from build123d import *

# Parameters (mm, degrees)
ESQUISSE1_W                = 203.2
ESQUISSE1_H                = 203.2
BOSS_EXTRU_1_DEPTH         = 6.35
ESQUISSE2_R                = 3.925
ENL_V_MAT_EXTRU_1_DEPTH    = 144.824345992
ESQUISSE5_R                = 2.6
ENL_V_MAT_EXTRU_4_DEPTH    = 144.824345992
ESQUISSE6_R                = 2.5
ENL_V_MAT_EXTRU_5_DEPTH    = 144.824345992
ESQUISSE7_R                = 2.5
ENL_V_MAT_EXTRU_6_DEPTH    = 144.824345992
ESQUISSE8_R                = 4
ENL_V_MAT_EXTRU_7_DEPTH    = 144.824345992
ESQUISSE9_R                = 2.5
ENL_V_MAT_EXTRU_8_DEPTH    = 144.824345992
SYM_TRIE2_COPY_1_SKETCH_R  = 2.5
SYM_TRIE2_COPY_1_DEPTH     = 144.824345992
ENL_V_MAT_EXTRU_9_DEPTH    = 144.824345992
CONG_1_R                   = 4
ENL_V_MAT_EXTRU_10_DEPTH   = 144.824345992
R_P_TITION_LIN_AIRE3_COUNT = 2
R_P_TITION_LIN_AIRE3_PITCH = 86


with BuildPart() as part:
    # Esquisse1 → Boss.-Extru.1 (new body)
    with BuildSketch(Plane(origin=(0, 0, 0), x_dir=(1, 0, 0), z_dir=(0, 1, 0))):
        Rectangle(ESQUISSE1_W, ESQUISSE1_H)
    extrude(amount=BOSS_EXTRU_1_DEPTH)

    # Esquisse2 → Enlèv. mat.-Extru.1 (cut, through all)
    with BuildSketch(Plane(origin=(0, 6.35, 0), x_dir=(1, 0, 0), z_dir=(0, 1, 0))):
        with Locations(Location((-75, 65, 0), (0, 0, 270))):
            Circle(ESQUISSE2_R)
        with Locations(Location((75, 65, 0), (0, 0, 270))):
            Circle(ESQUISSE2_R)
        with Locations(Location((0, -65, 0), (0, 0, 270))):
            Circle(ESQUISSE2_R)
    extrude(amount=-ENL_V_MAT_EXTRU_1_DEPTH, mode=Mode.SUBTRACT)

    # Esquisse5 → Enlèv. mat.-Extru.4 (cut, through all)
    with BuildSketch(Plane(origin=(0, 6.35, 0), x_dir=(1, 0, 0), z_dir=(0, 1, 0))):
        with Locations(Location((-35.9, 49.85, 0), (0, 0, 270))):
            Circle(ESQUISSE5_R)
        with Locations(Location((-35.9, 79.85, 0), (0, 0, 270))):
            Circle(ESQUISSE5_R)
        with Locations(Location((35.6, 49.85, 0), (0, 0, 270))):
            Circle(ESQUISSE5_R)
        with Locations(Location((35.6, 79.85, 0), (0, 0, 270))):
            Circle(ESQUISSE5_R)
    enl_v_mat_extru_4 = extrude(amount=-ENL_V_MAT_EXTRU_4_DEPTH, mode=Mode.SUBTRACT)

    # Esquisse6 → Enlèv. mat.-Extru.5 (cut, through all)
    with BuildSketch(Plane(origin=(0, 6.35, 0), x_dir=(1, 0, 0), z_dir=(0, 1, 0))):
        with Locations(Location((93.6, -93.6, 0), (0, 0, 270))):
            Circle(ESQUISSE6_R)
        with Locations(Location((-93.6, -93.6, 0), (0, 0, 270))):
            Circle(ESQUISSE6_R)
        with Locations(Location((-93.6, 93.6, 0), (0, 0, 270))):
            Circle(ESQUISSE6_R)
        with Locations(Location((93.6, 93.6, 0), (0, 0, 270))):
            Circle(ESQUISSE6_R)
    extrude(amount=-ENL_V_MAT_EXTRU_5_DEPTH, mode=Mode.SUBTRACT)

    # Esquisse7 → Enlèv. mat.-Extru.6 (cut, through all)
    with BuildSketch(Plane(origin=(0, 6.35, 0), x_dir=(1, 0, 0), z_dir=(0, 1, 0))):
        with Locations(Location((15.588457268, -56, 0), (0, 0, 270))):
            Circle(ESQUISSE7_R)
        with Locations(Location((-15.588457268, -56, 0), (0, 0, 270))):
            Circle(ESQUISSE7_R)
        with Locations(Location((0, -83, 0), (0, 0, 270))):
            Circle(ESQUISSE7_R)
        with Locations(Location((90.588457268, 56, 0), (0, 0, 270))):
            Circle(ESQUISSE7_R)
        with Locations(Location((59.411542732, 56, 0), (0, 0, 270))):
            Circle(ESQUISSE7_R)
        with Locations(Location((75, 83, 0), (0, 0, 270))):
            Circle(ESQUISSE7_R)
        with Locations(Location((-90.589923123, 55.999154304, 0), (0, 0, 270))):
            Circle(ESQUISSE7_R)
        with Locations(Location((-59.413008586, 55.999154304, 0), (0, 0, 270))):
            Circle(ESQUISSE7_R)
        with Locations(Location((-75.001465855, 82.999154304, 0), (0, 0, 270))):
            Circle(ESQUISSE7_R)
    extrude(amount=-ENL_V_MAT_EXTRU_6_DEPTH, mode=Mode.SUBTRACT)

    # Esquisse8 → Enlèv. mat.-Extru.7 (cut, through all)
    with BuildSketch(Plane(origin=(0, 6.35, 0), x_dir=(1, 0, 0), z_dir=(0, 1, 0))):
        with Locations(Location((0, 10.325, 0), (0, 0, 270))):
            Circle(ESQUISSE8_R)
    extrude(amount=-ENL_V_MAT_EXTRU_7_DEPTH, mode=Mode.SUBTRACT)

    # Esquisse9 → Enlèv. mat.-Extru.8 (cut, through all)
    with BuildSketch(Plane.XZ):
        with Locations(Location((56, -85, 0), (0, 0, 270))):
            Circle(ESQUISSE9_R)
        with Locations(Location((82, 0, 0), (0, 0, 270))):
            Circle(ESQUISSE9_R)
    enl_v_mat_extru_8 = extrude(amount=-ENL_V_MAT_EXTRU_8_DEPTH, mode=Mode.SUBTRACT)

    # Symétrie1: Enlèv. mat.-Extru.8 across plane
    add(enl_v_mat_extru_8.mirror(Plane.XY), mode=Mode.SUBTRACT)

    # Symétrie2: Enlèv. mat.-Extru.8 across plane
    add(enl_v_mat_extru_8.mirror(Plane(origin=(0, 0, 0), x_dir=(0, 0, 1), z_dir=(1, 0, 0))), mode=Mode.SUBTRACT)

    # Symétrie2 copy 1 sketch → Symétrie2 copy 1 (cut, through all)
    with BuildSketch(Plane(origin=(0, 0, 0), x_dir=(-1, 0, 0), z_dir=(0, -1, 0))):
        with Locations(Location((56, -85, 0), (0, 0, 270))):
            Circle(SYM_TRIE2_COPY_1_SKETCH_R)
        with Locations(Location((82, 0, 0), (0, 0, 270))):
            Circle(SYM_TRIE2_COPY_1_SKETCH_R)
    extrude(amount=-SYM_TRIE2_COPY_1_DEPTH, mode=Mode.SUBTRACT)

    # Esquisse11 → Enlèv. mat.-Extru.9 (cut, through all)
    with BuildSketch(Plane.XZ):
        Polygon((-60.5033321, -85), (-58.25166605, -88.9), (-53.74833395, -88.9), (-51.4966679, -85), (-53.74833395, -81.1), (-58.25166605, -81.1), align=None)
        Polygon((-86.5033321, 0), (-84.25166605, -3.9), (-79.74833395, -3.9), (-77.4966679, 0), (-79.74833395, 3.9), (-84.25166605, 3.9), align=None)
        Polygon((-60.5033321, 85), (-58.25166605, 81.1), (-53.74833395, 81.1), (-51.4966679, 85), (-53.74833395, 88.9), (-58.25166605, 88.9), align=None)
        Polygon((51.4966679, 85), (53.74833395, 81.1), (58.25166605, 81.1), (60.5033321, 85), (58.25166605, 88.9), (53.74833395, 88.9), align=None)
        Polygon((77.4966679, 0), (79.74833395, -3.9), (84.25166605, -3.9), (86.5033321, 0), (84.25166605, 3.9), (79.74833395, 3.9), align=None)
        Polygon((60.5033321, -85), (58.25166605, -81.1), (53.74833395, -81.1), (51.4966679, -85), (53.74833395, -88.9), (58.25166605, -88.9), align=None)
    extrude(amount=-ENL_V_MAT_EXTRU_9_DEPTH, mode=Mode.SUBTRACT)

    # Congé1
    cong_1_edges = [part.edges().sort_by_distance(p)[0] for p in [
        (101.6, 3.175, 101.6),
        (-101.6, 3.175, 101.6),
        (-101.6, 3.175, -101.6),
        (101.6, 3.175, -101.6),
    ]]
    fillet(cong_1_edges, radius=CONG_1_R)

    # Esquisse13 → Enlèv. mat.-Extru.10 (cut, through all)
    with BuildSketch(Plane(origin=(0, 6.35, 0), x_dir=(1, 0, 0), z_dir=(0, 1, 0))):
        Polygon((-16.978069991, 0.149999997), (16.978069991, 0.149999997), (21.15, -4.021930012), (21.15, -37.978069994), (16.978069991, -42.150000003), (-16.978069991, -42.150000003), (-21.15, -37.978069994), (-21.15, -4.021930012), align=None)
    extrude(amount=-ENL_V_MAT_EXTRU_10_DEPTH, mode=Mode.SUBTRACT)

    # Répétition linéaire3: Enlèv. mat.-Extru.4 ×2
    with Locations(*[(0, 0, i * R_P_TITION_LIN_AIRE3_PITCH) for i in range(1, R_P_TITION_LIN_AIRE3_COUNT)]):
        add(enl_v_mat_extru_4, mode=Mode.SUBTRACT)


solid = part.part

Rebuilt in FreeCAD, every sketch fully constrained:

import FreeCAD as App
import Part
import Sketcher
from FreeCAD import Vector
Q = App.Units.Quantity


def edges_at(feature, points):
    """Names of the edges that pass closest to the given points."""
    edges = feature.Shape.Edges
    near = lambda p: min(range(len(edges)), key=lambda i: edges[i].distToShape(Part.Vertex(*p))[0])
    return sorted({f"Edge{near(p) + 1}" for p in points})


def add_polygon(sketch, points):
    """Adds a closed chain of lines whose ends are joined by coincident constraints."""
    first, n = sketch.GeometryCount, len(points)
    for a, b in zip(points, points[1:] + points[:1]):
        sketch.addGeometry(Part.LineSegment(App.Vector(*a, 0), App.Vector(*b, 0)), False)
    for i in range(n):
        sketch.addConstraint(Sketcher.Constraint("Coincident", first + i, 2, first + (i + 1) % n, 1))

doc = App.newDocument("Part")
params = doc.addObject("Spreadsheet::Sheet", "Params")
for row, (alias, value) in enumerate([
    ("sketch1_width", "203.2 mm"),
    ("pad1_length", "6.35 mm"),
    ("sketch2_diameter", "7.85 mm"),
    ("sketch3_diameter", "5.2 mm"),
    ("sketch4_diameter", "5 mm"),
    ("sketch5_diameter", "5 mm"),
    ("sketch6_diameter", "8 mm"),
    ("sketch7_diameter", "5 mm"),
    ("sketch8_diameter", "5 mm"),
    ("fillet_radius", "4 mm"),
    ("sketch10_length", "5.9 mm"),
    ("linearpattern_pitch", "86 mm"),
], start=1):
    params.set(f"A{row}", alias)
    params.set(f"B{row}", "=" + value)
    params.setAlias(f"B{row}", alias)

body = doc.addObject("PartDesign::Body", "Body")

sketch1 = doc.addObject("Sketcher::SketchObject", "Sketch")
body.addObject(sketch1)
sketch1.AttachmentSupport = (doc.XZ_Plane, [""])
sketch1.MapMode = "FlatFace"
add_polygon(sketch1, [(-101.6, -101.6), (-101.6, 101.6), (101.6, 101.6), (101.6, -101.6)])
sketch1.addConstraint([
    Sketcher.Constraint("Vertical", 0),
    Sketcher.Constraint("Horizontal", 1),
    Sketcher.Constraint("Vertical", 2),
    Sketcher.Constraint("Horizontal", 3),
    Sketcher.Constraint("Symmetric", 0, 2, 2, 2, -1, 1),
    Sketcher.Constraint("Equal", 3, 0),
    Sketcher.Constraint("DistanceX", 1, 1, 1, 2, Q("203.2 mm")),
])
sketch1.setExpression("Constraints[10]", "Params.sketch1_width")
pad1 = doc.addObject("PartDesign::Pad", "Pad")
body.addObject(pad1)
pad1.Profile = sketch1
pad1.setExpression("Length", "Params.pad1_length")
pad1.Reversed = True

sketch2 = doc.addObject("Sketcher::SketchObject", "Sketch001")
body.addObject(sketch2)
sketch2.AttachmentSupport = (doc.XZ_Plane, [""])
sketch2.MapMode = "FlatFace"
sketch2.AttachmentOffset = App.Placement(Vector(0, 0, -6.35), App.Rotation())
sketch2.addGeometry([
    Part.Circle(Vector(-75, -65, 0), Vector(0, 0, 1), 3.925),
    Part.Circle(Vector(75, -65, 0), Vector(0, 0, 1), 3.925),
    Part.Circle(Vector(0, 65, 0), Vector(0, 0, 1), 3.925),
], False)
sketch2.addConstraint([
    Sketcher.Constraint("Equal", 0, 1),
    Sketcher.Constraint("Equal", 1, 2),
    Sketcher.Constraint("Symmetric", 0, 3, 1, 3, -2),
    Sketcher.Constraint("PointOnObject", 2, 3, -2),
    Sketcher.Constraint("Diameter", 0, Q("7.85 mm")),
    Sketcher.Constraint("DistanceX", 0, 3, -1, 1, Q("75 mm")),
    Sketcher.Constraint("DistanceY", 0, 3, -1, 1, Q("65 mm")),
    Sketcher.Constraint("DistanceY", -1, 1, 2, 3, Q("65 mm")),
])
sketch2.setExpression("Constraints[4]", "Params.sketch2_diameter")
pocket1 = doc.addObject("PartDesign::Pocket", "Pocket")
body.addObject(pocket1)
pocket1.Profile = sketch2
pocket1.Type = "ThroughAll"
pocket1.Reversed = True

sketch3 = doc.addObject("Sketcher::SketchObject", "Sketch002")
body.addObject(sketch3)
sketch3.AttachmentSupport = (doc.XZ_Plane, [""])
sketch3.MapMode = "FlatFace"
sketch3.AttachmentOffset = App.Placement(Vector(0, 0, -6.35), App.Rotation())
sketch3.addGeometry([
    Part.Circle(Vector(-35.9, -49.85, 0), Vector(0, 0, 1), 2.6),
    Part.Circle(Vector(-35.9, -79.85, 0), Vector(0, 0, 1), 2.6),
    Part.Circle(Vector(35.6, -49.85, 0), Vector(0, 0, 1), 2.6),
    Part.Circle(Vector(35.6, -79.85, 0), Vector(0, 0, 1), 2.6),
], False)
sketch3.addConstraint([
    Sketcher.Constraint("Equal", 0, 1),
    Sketcher.Constraint("Equal", 1, 2),
    Sketcher.Constraint("Equal", 2, 3),
    Sketcher.Constraint("Horizontal", 0, 3, 2, 3),
    Sketcher.Constraint("Horizontal", 1, 3, 3, 3),
    Sketcher.Constraint("Vertical", 0, 3, 1, 3),
    Sketcher.Constraint("Vertical", 2, 3, 3, 3),
    Sketcher.Constraint("Diameter", 0, Q("5.2 mm")),
    Sketcher.Constraint("DistanceY", 1, 3, 0, 3, Q("30 mm")),
    Sketcher.Constraint("DistanceX", 0, 3, -1, 1, Q("35.9 mm")),
    Sketcher.Constraint("DistanceX", -1, 1, 2, 3, Q("35.6 mm")),
    Sketcher.Constraint("DistanceY", 0, 3, -1, 1, Q("49.85 mm")),
])
sketch3.setExpression("Constraints[7]", "Params.sketch3_diameter")
pocket2 = doc.addObject("PartDesign::Pocket", "Pocket001")
body.addObject(pocket2)
pocket2.Profile = sketch3
pocket2.Type = "ThroughAll"
pocket2.Reversed = True

sketch4 = doc.addObject("Sketcher::SketchObject", "Sketch003")
body.addObject(sketch4)
sketch4.AttachmentSupport = (doc.XZ_Plane, [""])
sketch4.MapMode = "FlatFace"
sketch4.AttachmentOffset = App.Placement(Vector(0, 0, -6.35), App.Rotation())
sketch4.addGeometry([
    Part.Circle(Vector(93.6, 93.6, 0), Vector(0, 0, 1), 2.5),
    Part.Circle(Vector(-93.6, 93.6, 0), Vector(0, 0, 1), 2.5),
    Part.Circle(Vector(-93.6, -93.6, 0), Vector(0, 0, 1), 2.5),
    Part.Circle(Vector(93.6, -93.6, 0), Vector(0, 0, 1), 2.5),
], False)
sketch4.addConstraint([
    Sketcher.Constraint("Equal", 0, 1),
    Sketcher.Constraint("Equal", 1, 2),
    Sketcher.Constraint("Equal", 2, 3),
    Sketcher.Constraint("Symmetric", 0, 3, 2, 3, -1, 1),
    Sketcher.Constraint("Symmetric", 1, 3, 3, 3, -1, 1),
    Sketcher.Constraint("Symmetric", 0, 3, 1, 3, -2),
    Sketcher.Constraint("Diameter", 0, Q("5 mm")),
    Sketcher.Constraint("DistanceX", -1, 1, 0, 3, Q("93.6 mm")),
    Sketcher.Constraint("DistanceY", -1, 1, 0, 3, Q("93.6 mm")),
])
sketch4.setExpression("Constraints[6]", "Params.sketch4_diameter")
pocket3 = doc.addObject("PartDesign::Pocket", "Pocket002")
body.addObject(pocket3)
pocket3.Profile = sketch4
pocket3.Type = "ThroughAll"
pocket3.Reversed = True

sketch5 = doc.addObject("Sketcher::SketchObject", "Sketch004")
body.addObject(sketch5)
sketch5.AttachmentSupport = (doc.XZ_Plane, [""])
sketch5.MapMode = "FlatFace"
sketch5.AttachmentOffset = App.Placement(Vector(0, 0, -6.35), App.Rotation())
sketch5.addGeometry([
    Part.Circle(Vector(15.588457, 56, 0), Vector(0, 0, 1), 2.5),
    Part.Circle(Vector(-15.588457, 56, 0), Vector(0, 0, 1), 2.5),
    Part.Circle(Vector(0, 83, 0), Vector(0, 0, 1), 2.5),
    Part.Circle(Vector(90.588457, -56, 0), Vector(0, 0, 1), 2.5),
    Part.Circle(Vector(59.411543, -56, 0), Vector(0, 0, 1), 2.5),
    Part.Circle(Vector(75, -83, 0), Vector(0, 0, 1), 2.5),
    Part.Circle(Vector(-90.589923, -55.999154, 0), Vector(0, 0, 1), 2.5),
    Part.Circle(Vector(-59.413009, -55.999154, 0), Vector(0, 0, 1), 2.5),
    Part.Circle(Vector(-75.001466, -82.999154, 0), Vector(0, 0, 1), 2.5),
], False)
sketch5.addConstraint([
    Sketcher.Constraint("Equal", 0, 1),
    Sketcher.Constraint("Equal", 1, 2),
    Sketcher.Constraint("Equal", 2, 3),
    Sketcher.Constraint("Equal", 3, 4),
    Sketcher.Constraint("Equal", 4, 5),
    Sketcher.Constraint("Equal", 5, 6),
    Sketcher.Constraint("Equal", 6, 7),
    Sketcher.Constraint("Equal", 7, 8),
    Sketcher.Constraint("Symmetric", 0, 3, 1, 3, -2),
    Sketcher.Constraint("PointOnObject", 2, 3, -2),
    Sketcher.Constraint("Horizontal", 3, 3, 4, 3),
    Sketcher.Constraint("Horizontal", 6, 3, 7, 3),
    Sketcher.Constraint("Diameter", 0, Q("5 mm")),
    Sketcher.Constraint("DistanceY", -1, 1, 0, 3, Q("56 mm")),
    Sketcher.Constraint("DistanceY", -1, 1, 2, 3, Q("83 mm")),
    Sketcher.Constraint("DistanceY", 3, 3, -1, 1, Q("56 mm")),
    Sketcher.Constraint("DistanceX", -1, 1, 5, 3, Q("75 mm")),
    Sketcher.Constraint("DistanceY", 5, 3, -1, 1, Q("83 mm")),
    Sketcher.Constraint("DistanceX", 0, 3, 3, 3, Q("75 mm")),
    Sketcher.Constraint("DistanceX", 1, 3, 4, 3, Q("75 mm")),
    Sketcher.Constraint("DistanceY", 8, 3, 6, 3, Q("27 mm")),
    Sketcher.Constraint("DistanceX", 7, 3, -1, 1, Q("59.413009 mm")),
    Sketcher.Constraint("DistanceX", 6, 3, 0, 3, Q("106.17838 mm")),
    Sketcher.Constraint("DistanceX", 7, 3, 4, 3, Q("118.824551 mm")),
    Sketcher.Constraint("DistanceX", 8, 3, 4, 3, Q("134.413009 mm")),
    Sketcher.Constraint("DistanceY", 6, 3, -1, 1, Q("55.999154 mm")),
])
sketch5.setExpression("Constraints[12]", "Params.sketch5_diameter")
pocket4 = doc.addObject("PartDesign::Pocket", "Pocket003")
body.addObject(pocket4)
pocket4.Profile = sketch5
pocket4.Type = "ThroughAll"
pocket4.Reversed = True

sketch6 = doc.addObject("Sketcher::SketchObject", "Sketch005")
body.addObject(sketch6)
sketch6.AttachmentSupport = (doc.XZ_Plane, [""])
sketch6.MapMode = "FlatFace"
sketch6.AttachmentOffset = App.Placement(Vector(0, 0, -6.35), App.Rotation())
sketch6.addGeometry(Part.Circle(Vector(0, -10.325, 0), Vector(0, 0, 1), 4), False)
sketch6.addConstraint([
    Sketcher.Constraint("PointOnObject", 0, 3, -2),
    Sketcher.Constraint("Diameter", 0, Q("8 mm")),
    Sketcher.Constraint("DistanceY", 0, 3, -1, 1, Q("10.325 mm")),
])
sketch6.setExpression("Constraints[1]", "Params.sketch6_diameter")
pocket5 = doc.addObject("PartDesign::Pocket", "Pocket004")
body.addObject(pocket5)
pocket5.Profile = sketch6
pocket5.Type = "ThroughAll"
pocket5.Reversed = True

sketch7 = doc.addObject("Sketcher::SketchObject", "Sketch006")
body.addObject(sketch7)
sketch7.AttachmentSupport = (doc.XZ_Plane, [""])
sketch7.MapMode = "FlatFace"
sketch7.addGeometry([
    Part.Circle(Vector(56, -85, 0), Vector(0, 0, 1), 2.5),
    Part.Circle(Vector(82, 0, 0), Vector(0, 0, 1), 2.5),
], False)
sketch7.addConstraint([
    Sketcher.Constraint("Equal", 0, 1),
    Sketcher.Constraint("PointOnObject", 1, 3, -1),
    Sketcher.Constraint("Diameter", 0, Q("5 mm")),
    Sketcher.Constraint("DistanceX", -1, 1, 0, 3, Q("56 mm")),
    Sketcher.Constraint("DistanceY", 0, 3, -1, 1, Q("85 mm")),
    Sketcher.Constraint("DistanceX", -1, 1, 1, 3, Q("82 mm")),
])
sketch7.setExpression("Constraints[2]", "Params.sketch7_diameter")
pocket6 = doc.addObject("PartDesign::Pocket", "Pocket005")
body.addObject(pocket6)
pocket6.Profile = sketch7
pocket6.Type = "ThroughAll"
doc.recompute()

mirrored = doc.addObject("PartDesign::Mirrored", "Mirrored")
body.addObject(mirrored)
mirrored.Originals = [pocket6]
mirrored.MirrorPlane = (doc.XY_Plane, [""])
body.Tip = mirrored
doc.recompute()

mirrored2 = doc.addObject("PartDesign::Mirrored", "Mirrored001")
body.addObject(mirrored2)
mirrored2.Originals = [pocket6]
mirrored2.MirrorPlane = (doc.YZ_Plane, [""])
body.Tip = mirrored2

sketch8 = doc.addObject("Sketcher::SketchObject", "Sketch007")
body.addObject(sketch8)
sketch8.AttachmentSupport = (doc.XZ_Plane, [""])
sketch8.MapMode = "FlatFace"
sketch8.addGeometry([
    Part.Circle(Vector(-56, 85, 0), Vector(0, 0, 1), 2.5),
    Part.Circle(Vector(-82, 0, 0), Vector(0, 0, 1), 2.5),
], False)
sketch8.addConstraint([
    Sketcher.Constraint("Equal", 0, 1),
    Sketcher.Constraint("PointOnObject", 1, 3, -1),
    Sketcher.Constraint("Diameter", 0, Q("5 mm")),
    Sketcher.Constraint("DistanceX", 0, 3, -1, 1, Q("56 mm")),
    Sketcher.Constraint("DistanceY", -1, 1, 0, 3, Q("85 mm")),
    Sketcher.Constraint("DistanceX", 1, 3, -1, 1, Q("82 mm")),
])
sketch8.setExpression("Constraints[2]", "Params.sketch8_diameter")
pocket7 = doc.addObject("PartDesign::Pocket", "Pocket006")
body.addObject(pocket7)
pocket7.Profile = sketch8
pocket7.Type = "ThroughAll"

sketch9 = doc.addObject("Sketcher::SketchObject", "Sketch008")
body.addObject(sketch9)
sketch9.AttachmentSupport = (doc.XZ_Plane, [""])
sketch9.MapMode = "FlatFace"
add_polygon(sketch9, [(-60.503332, -85), (-58.251666, -88.9), (-53.748334, -88.9), (-51.496668, -85), (-53.748334, -81.1), (-58.251666, -81.1)])
add_polygon(sketch9, [(-86.503332, 0), (-84.251666, -3.9), (-79.748334, -3.9), (-77.496668, 0), (-79.748334, 3.9), (-84.251666, 3.9)])
add_polygon(sketch9, [(-60.503332, 85), (-58.251666, 81.1), (-53.748334, 81.1), (-51.496668, 85), (-53.748334, 88.9), (-58.251666, 88.9)])
add_polygon(sketch9, [(51.496668, 85), (53.748334, 81.1), (58.251666, 81.1), (60.503332, 85), (58.251666, 88.9), (53.748334, 88.9)])
add_polygon(sketch9, [(77.496668, 0), (79.748334, -3.9), (84.251666, -3.9), (86.503332, 0), (84.251666, 3.9), (79.748334, 3.9)])
add_polygon(sketch9, [(60.503332, -85), (58.251666, -81.1), (53.748334, -81.1), (51.496668, -85), (53.748334, -88.9), (58.251666, -88.9)])
sketch9.addConstraint([
    Sketcher.Constraint("Horizontal", 1),
    Sketcher.Constraint("Horizontal", 4),
    Sketcher.Constraint("Horizontal", 7),
    Sketcher.Constraint("Horizontal", 10),
    Sketcher.Constraint("Horizontal", 13),
    Sketcher.Constraint("Horizontal", 16),
    Sketcher.Constraint("Horizontal", 19),
    Sketcher.Constraint("Horizontal", 22),
    Sketcher.Constraint("Horizontal", 25),
    Sketcher.Constraint("Horizontal", 28),
    Sketcher.Constraint("Horizontal", 31),
    Sketcher.Constraint("Horizontal", 34),
    Sketcher.Constraint("Symmetric", 3, 2, 18, 2, -1, 1),
    Sketcher.Constraint("Symmetric", 5, 2, 20, 2, -1, 1),
    Sketcher.Constraint("Symmetric", 0, 2, 21, 2, -1, 1),
    Sketcher.Constraint("Symmetric", 2, 2, 23, 2, -1, 1),
    Sketcher.Constraint("Symmetric", 9, 2, 24, 2, -1, 1),
    Sketcher.Constraint("Symmetric", 11, 2, 26, 2, -1, 1),
    Sketcher.Constraint("Symmetric", 6, 2, 27, 2, -1, 1),
    Sketcher.Constraint("Symmetric", 8, 2, 29, 2, -1, 1),
    Sketcher.Constraint("Symmetric", 12, 2, 30, 2, -1, 1),
    Sketcher.Constraint("Symmetric", 14, 2, 32, 2, -1, 1),
    Sketcher.Constraint("Symmetric", 15, 2, 33, 2, -1, 1),
    Sketcher.Constraint("Symmetric", 17, 2, 35, 2, -1, 1),
    Sketcher.Constraint("Symmetric", 13, 2, 18, 2, -2),
    Sketcher.Constraint("Symmetric", 17, 2, 20, 2, -2),
    Sketcher.Constraint("Symmetric", 16, 2, 21, 2, -2),
    Sketcher.Constraint("Symmetric", 14, 2, 23, 2, -2),
    Sketcher.Constraint("Symmetric", 7, 2, 24, 2, -2),
    Sketcher.Constraint("PointOnObject", 8, 2, -1),
    Sketcher.Constraint("PointOnObject", 11, 2, -1),
    Sketcher.Constraint("Parallel", 0, 3),
    Sketcher.Constraint("Parallel", 2, 5),
    Sketcher.Constraint("Parallel", 3, 6),
    Sketcher.Constraint("Parallel", 5, 8),
    Sketcher.Constraint("Parallel", 6, 9),
    Sketcher.Constraint("Parallel", 8, 11),
    Sketcher.Constraint("Parallel", 9, 12),
    Sketcher.Constraint("Parallel", 12, 15),
    Sketcher.Constraint("Parallel", 17, 20),
    Sketcher.Constraint("Parallel", 20, 23),
    Sketcher.Constraint("Parallel", 23, 26),
    Sketcher.Constraint("Parallel", 26, 29),
    Sketcher.Constraint("Parallel", 29, 32),
    Sketcher.Constraint("Parallel", 32, 35),
    Sketcher.Constraint("Horizontal", 2, 2, 5, 2),
    Sketcher.Constraint("Vertical", 1, 2, 3, 2),
    Sketcher.Constraint("Equal", 4, 7),
    Sketcher.Constraint("Equal", 5, 6),
    Sketcher.Constraint("Angle", 0, Q("-60 deg")),
    Sketcher.Constraint("DistanceY", 2, 2, -1, 1, Q("85 mm")),
    Sketcher.Constraint("DistanceX", 6, 2, 4, 2, Q("26 mm")),
    Sketcher.Constraint("DistanceX", 12, 2, 18, 2, Q("112 mm")),
    Sketcher.Constraint("DistanceY", 0, 2, -1, 1, Q("88.9 mm")),
    Sketcher.Constraint("DistanceX", 0, 2, 2, 2, Q("6.754998 mm")),
])
pocket8 = doc.addObject("PartDesign::Pocket", "Pocket007")
body.addObject(pocket8)
pocket8.Profile = sketch9
pocket8.Type = "ThroughAll"
doc.recompute()

fillet = doc.addObject("PartDesign::Fillet", "Fillet")
body.addObject(fillet)
fillet.Base = (pocket8, edges_at(pocket8, [
    (101.6, 3.175, 101.6),
    (-101.6, 3.175, 101.6),
    (-101.6, 3.175, -101.6),
    (101.6, 3.175, -101.6),
]))
fillet.setExpression("Radius", "Params.fillet_radius")

sketch10 = doc.addObject("Sketcher::SketchObject", "Sketch009")
body.addObject(sketch10)
sketch10.AttachmentSupport = (doc.XZ_Plane, [""])
sketch10.MapMode = "FlatFace"
sketch10.AttachmentOffset = App.Placement(Vector(0, 0, -6.35), App.Rotation())
add_polygon(sketch10, [(16.97807, -0.15), (-16.97807, -0.15), (-21.15, 4.02193), (-21.15, 37.97807), (-16.97807, 42.15), (16.97807, 42.15), (21.15, 37.97807), (21.15, 4.02193)])
sketch10.addConstraint([
    Sketcher.Constraint("Horizontal", 0),
    Sketcher.Constraint("Vertical", 2),
    Sketcher.Constraint("Horizontal", 4),
    Sketcher.Constraint("Vertical", 6),
    Sketcher.Constraint("Symmetric", 2, 2, 5, 2, -2),
    Sketcher.Constraint("Perpendicular", 1, 3),
    Sketcher.Constraint("Perpendicular", 3, 5),
    Sketcher.Constraint("Perpendicular", 5, 7),
    Sketcher.Constraint("Horizontal", 1, 2, 6, 2),
    Sketcher.Constraint("Vertical", 0, 2, 3, 2),
    Sketcher.Constraint("Vertical", 4, 2, 7, 2),
    Sketcher.Constraint("Equal", 4, 2),
    Sketcher.Constraint("Distance", 1, Q("5.9 mm")),
    Sketcher.Constraint("DistanceY", 0, 2, 3, 2, Q("42.3 mm")),
    Sketcher.Constraint("DistanceY", 0, 2, -1, 1, Q("0.15 mm")),
])
sketch10.setExpression("Constraints[20]", "Params.sketch10_length")
pocket9 = doc.addObject("PartDesign::Pocket", "Pocket008")
body.addObject(pocket9)
pocket9.Profile = sketch10
pocket9.Type = "ThroughAll"
pocket9.Reversed = True
doc.recompute()

linearpattern = doc.addObject("PartDesign::LinearPattern", "LinearPattern")
body.addObject(linearpattern)
linearpattern.Originals = [pocket2]
linearpattern.Direction = (doc.Z_Axis, [""])
linearpattern.Mode = "offset"
linearpattern.setExpression("Offset", "Params.linearpattern_pitch")
linearpattern.Occurrences = 2
body.Tip = linearpattern

doc.recompute()
